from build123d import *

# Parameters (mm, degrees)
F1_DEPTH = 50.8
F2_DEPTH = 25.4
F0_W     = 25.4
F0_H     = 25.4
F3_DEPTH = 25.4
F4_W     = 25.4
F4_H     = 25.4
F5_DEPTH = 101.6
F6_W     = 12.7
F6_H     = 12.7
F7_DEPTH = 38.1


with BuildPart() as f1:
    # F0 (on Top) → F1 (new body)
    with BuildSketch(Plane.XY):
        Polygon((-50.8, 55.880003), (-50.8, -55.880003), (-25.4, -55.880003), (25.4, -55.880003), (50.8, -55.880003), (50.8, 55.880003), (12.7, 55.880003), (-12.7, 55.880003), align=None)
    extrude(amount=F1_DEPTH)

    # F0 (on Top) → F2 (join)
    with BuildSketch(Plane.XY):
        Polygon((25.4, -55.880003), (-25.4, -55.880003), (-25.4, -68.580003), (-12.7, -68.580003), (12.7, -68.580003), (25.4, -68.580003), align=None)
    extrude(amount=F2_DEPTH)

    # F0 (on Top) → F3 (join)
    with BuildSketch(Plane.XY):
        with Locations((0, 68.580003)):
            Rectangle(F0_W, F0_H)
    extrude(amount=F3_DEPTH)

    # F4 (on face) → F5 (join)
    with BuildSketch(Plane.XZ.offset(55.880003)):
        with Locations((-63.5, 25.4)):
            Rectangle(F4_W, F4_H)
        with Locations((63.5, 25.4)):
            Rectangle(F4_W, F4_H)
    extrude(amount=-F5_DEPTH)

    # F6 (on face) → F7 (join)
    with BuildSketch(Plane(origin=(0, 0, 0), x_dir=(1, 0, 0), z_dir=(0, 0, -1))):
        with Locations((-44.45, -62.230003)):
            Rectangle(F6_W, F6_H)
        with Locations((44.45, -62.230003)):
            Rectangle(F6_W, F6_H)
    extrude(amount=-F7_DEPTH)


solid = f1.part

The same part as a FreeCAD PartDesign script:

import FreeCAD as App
import Part
import Sketcher
from FreeCAD import Vector
Q = App.Units.Quantity


def add_polygon(sketch, points):
    """Adds a closed chain of lines whose ends are joined by coincident constraints."""
    first, n = sketch.GeometryCount, len(points)
    for a, b in zip(points, points[1:] + points[:1]):
        sketch.addGeometry(Part.LineSegment(App.Vector(*a, 0), App.Vector(*b, 0)), False)
    for i in range(n):
        sketch.addConstraint(Sketcher.Constraint("Coincident", first + i, 2, first + (i + 1) % n, 1))

doc = App.newDocument("Part")
body = doc.addObject("PartDesign::Body", "Body")

# Sketch on XY plane
sketch1 = body.newObject("Sketcher::SketchObject", "Sketch")
sketch1.AttachmentSupport = (doc.getObject("XY_Plane"), [""])
sketch1.MapMode = "FlatFace"
add_polygon(sketch1, [(-51, 56), (-51, -56), (51, -56), (51, 56)])  # lines 0-3
sketch1.addConstraint(Sketcher.Constraint("Vertical", 0))
sketch1.addConstraint(Sketcher.Constraint("Horizontal", 1))
sketch1.addConstraint(Sketcher.Constraint("Vertical", 2))
sketch1.addConstraint(Sketcher.Constraint("Horizontal", 3))
sketch1.addConstraint(Sketcher.Constraint("Symmetric", 0, 2, 2, 2, -1, 1))
sketch1.addConstraint(Sketcher.Constraint("DistanceX", 1, 1, 1, 2, Q("4 in")))
sketch1.addConstraint(Sketcher.Constraint("DistanceY", 0, 2, -1, 1, Q("2.2000001 in")))
pad1 = body.newObject("PartDesign::Pad", "Pad")
pad1.Profile = sketch1
pad1.Length = Q("2 in")

# Sketch on XY plane
sketch2 = body.newObject("Sketcher::SketchObject", "Sketch001")
sketch2.AttachmentSupport = (doc.getObject("XY_Plane"), [""])
sketch2.MapMode = "FlatFace"
add_polygon(sketch2, [(25, -56), (-25, -56), (-25, -69), (25, -69)])  # lines 0-3
sketch2.addConstraint(Sketcher.Constraint("Horizontal", 0))
sketch2.addConstraint(Sketcher.Constraint("Vertical", 1))
sketch2.addConstraint(Sketcher.Constraint("Horizontal", 2))
sketch2.addConstraint(Sketcher.Constraint("Vertical", 3))
sketch2.addConstraint(Sketcher.Constraint("DistanceX", 0, 2, 0, 1, Q("2 in")))
sketch2.addConstraint(Sketcher.Constraint("DistanceY", 1, 2, 1, 1, Q("0.5 in")))
sketch2.addConstraint(Sketcher.Constraint("DistanceX", 0, 2, -1, 1, Q("1 in")))
sketch2.addConstraint(Sketcher.Constraint("DistanceY", 0, 2, -1, 1, Q("2.2000001 in")))
pad2 = body.newObject("PartDesign::Pad", "Pad001")
pad2.Profile = sketch2
pad2.Length = Q("1 in")

# Sketch on XY plane
sketch3 = body.newObject("Sketcher::SketchObject", "Sketch002")
sketch3.AttachmentSupport = (doc.getObject("XY_Plane"), [""])
sketch3.MapMode = "FlatFace"
add_polygon(sketch3, [(-13, 81), (-13, 56), (13, 56), (13, 81)])  # lines 0-3
sketch3.addConstraint(Sketcher.Constraint("Vertical", 0))
sketch3.addConstraint(Sketcher.Constraint("Horizontal", 1))
sketch3.addConstraint(Sketcher.Constraint("Vertical", 2))
sketch3.addConstraint(Sketcher.Constraint("Horizontal", 3))
sketch3.addConstraint(Sketcher.Constraint("Equal", 3, 0))
sketch3.addConstraint(Sketcher.Constraint("DistanceX", 1, 1, 1, 2, Q("1 in")))
sketch3.addConstraint(Sketcher.Constraint("DistanceX", 0, 2, -1, 1, Q("0.5 in")))
sketch3.addConstraint(Sketcher.Constraint("DistanceY", -1, 1, 0, 2, Q("2.2000001 in")))
pad3 = body.newObject("PartDesign::Pad", "Pad002")
pad3.Profile = sketch3
pad3.Length = Q("1 in")

# Sketch on XZ plane
sketch4 = body.newObject("Sketcher::SketchObject", "Sketch003")
sketch4.AttachmentSupport = (doc.getObject("XZ_Plane"), [""])
sketch4.MapMode = "FlatFace"
sketch4.AttachmentOffset = App.Placement(Vector(0, 0, 2.2000001 * 25.4), App.Rotation())
add_polygon(sketch4, [(-76, 38), (-76, 13), (-51, 13), (-51, 38)])  # lines 0-3
add_polygon(sketch4, [(51, 38), (51, 13), (76, 13), (76, 38)])  # lines 4-7
sketch4.addConstraint(Sketcher.Constraint("Vertical", 0))
sketch4.addConstraint(Sketcher.Constraint("Horizontal", 1))
sketch4.addConstraint(Sketcher.Constraint("Vertical", 2))
sketch4.addConstraint(Sketcher.Constraint("Horizontal", 3))
sketch4.addConstraint(Sketcher.Constraint("Vertical", 4))
sketch4.addConstraint(Sketcher.Constraint("Horizontal", 5))
sketch4.addConstraint(Sketcher.Constraint("Vertical", 6))
sketch4.addConstraint(Sketcher.Constraint("Horizontal", 7))
sketch4.addConstraint(Sketcher.Constraint("Symmetric", 1, 2, 4, 2, -2))
sketch4.addConstraint(Sketcher.Constraint("Symmetric", 3, 2, 6, 2, -2))
sketch4.addConstraint(Sketcher.Constraint("Equal", 7, 0))
sketch4.addConstraint(Sketcher.Constraint("DistanceX", 1, 1, 1, 2, Q("1 in")))
sketch4.addConstraint(Sketcher.Constraint("DistanceX", 0, 2, -1, 1, Q("3 in")))
sketch4.addConstraint(Sketcher.Constraint("DistanceY", -1, 1, 0, 2, Q("0.5 in")))
pad4 = body.newObject("PartDesign::Pad", "Pad003")
pad4.Profile = sketch4
pad4.Length = Q("4 in")
pad4.Reversed = True

# Sketch on XY plane
sketch5 = body.newObject("Sketcher::SketchObject", "Sketch004")
sketch5.AttachmentSupport = (doc.getObject("XY_Plane"), [""])
sketch5.MapMode = "FlatFace"
add_polygon(sketch5, [(-51, 56), (-51, 69), (-38, 69), (-38, 56)])  # lines 0-3
add_polygon(sketch5, [(38, 56), (38, 69), (51, 69), (51, 56)])  # lines 4-7
sketch5.addConstraint(Sketcher.Constraint("Vertical", 0))
sketch5.addConstraint(Sketcher.Constraint("Horizontal", 1))
sketch5.addConstraint(Sketcher.Constraint("Vertical", 2))
sketch5.addConstraint(Sketcher.Constraint("Horizontal", 3))
sketch5.addConstraint(Sketcher.Constraint("Vertical", 4))
sketch5.addConstraint(Sketcher.Constraint("Horizontal", 5))
sketch5.addConstraint(Sketcher.Constraint("Vertical", 6))
sketch5.addConstraint(Sketcher.Constraint("Horizontal", 7))
sketch5.addConstraint(Sketcher.Constraint("Symmetric", 1, 2, 4, 2, -2))
sketch5.addConstraint(Sketcher.Constraint("Symmetric", 3, 2, 6, 2, -2))
sketch5.addConstraint(Sketcher.Constraint("Equal", 7, 0))
sketch5.addConstraint(Sketcher.Constraint("DistanceX", 1, 1, 1, 2, Q("0.5 in")))
sketch5.addConstraint(Sketcher.Constraint("DistanceX", 0, 2, -1, 1, Q("2 in")))
sketch5.addConstraint(Sketcher.Constraint("DistanceY", -1, 1, 0, 2, Q("2.7000001 in")))
pad5 = body.newObject("PartDesign::Pad", "Pad004")
pad5.Profile = sketch5
pad5.Length = Q("1.5 in")

doc.recompute()
